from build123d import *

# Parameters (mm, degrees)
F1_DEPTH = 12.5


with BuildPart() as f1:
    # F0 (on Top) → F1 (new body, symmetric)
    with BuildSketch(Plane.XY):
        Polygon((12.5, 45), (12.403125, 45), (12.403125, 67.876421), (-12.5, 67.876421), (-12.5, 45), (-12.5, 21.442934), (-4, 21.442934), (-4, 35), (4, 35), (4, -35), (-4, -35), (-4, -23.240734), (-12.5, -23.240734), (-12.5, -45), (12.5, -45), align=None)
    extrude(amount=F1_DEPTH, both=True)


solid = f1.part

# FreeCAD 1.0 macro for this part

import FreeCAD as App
import Part
import Sketcher

V = App.Vector


def add_polygon(sketch, points):
    """Adds a closed chain of lines whose ends are joined by coincident constraints."""
    first, n = sketch.GeometryCount, len(points)
    for a, b in zip(points, points[1:] + points[:1]):
        sketch.addGeometry(Part.LineSegment(App.Vector(*a, 0), App.Vector(*b, 0)), False)
    for i in range(n):
        sketch.addConstraint(Sketcher.Constraint("Coincident", first + i, 2, first + (i + 1) % n, 1))

doc = App.newDocument("Part")
body = doc.addObject("PartDesign::Body", "Body")

# Sketch on XY plane
sketch1 = body.newObject("Sketcher::SketchObject", "Sketch")
sketch1.AttachmentSupport = (doc.getObject("XY_Plane"), [""])
sketch1.MapMode = "FlatFace"
add_polygon(sketch1, [(12.5, 45), (12.4, 45), (12.4, 67.88), (-12.5, 67.88), (-12.5, 21.44), (-4, 21.44), (-4, 35), (4, 35), (4, -35), (-4, -35), (-4, -23.24), (-12.5, -23.24), (-12.5, -45), (12.5, -45)])  # lines 0-13
sketch1.addConstraint([
    Sketcher.Constraint("Horizontal", 0),
    Sketcher.Constraint("Vertical", 1),
    Sketcher.Constraint("Horizontal", 2),
    Sketcher.Constraint("Vertical", 3),
    Sketcher.Constraint("Horizontal", 4),
    Sketcher.Constraint("Vertical", 5),
    Sketcher.Constraint("Horizontal", 6),
    Sketcher.Constraint("Vertical", 7),
    Sketcher.Constraint("Horizontal", 8),
    Sketcher.Constraint("Vertical", 9),
    Sketcher.Constraint("Horizontal", 10),
    Sketcher.Constraint("Vertical", 11),
    Sketcher.Constraint("Horizontal", 12),
    Sketcher.Constraint("Vertical", 13),
    Sketcher.Constraint("Symmetric", 5, 2, 7, 2, -1, 1),
    Sketcher.Constraint("Symmetric", 11, 2, 13, 2, -1, 1),
    Sketcher.Constraint("Vertical", 5, 2, 8, 2),
    Sketcher.Constraint("Vertical", 3, 2, 10, 2),
    Sketcher.Constraint("DistanceX", 6, 1, 6, 2, 8.0),
    Sketcher.Constraint("DistanceX", 12, 1, 12, 2, 25.0),
    Sketcher.Constraint("DistanceY", 7, 2, 7, 1, 70.0),
    Sketcher.Constraint("DistanceY", 13, 1, 13, 2, 90.0),
    Sketcher.Constraint("DistanceY", 1, 1, 1, 2, 22.876421),
    Sketcher.Constraint("DistanceX", 0, 2, 0, 1, 0.096875),
    Sketcher.Constraint("DistanceY", 3, 2, 3, 1, 46.433487),
    Sketcher.Constraint("DistanceY", 9, 1, 9, 2, 11.759266),
])
pad1 = body.newObject("PartDesign::Pad", "Pad")
pad1.Profile = sketch1
pad1.Length = 25
pad1.Midplane = True

doc.recompute()
